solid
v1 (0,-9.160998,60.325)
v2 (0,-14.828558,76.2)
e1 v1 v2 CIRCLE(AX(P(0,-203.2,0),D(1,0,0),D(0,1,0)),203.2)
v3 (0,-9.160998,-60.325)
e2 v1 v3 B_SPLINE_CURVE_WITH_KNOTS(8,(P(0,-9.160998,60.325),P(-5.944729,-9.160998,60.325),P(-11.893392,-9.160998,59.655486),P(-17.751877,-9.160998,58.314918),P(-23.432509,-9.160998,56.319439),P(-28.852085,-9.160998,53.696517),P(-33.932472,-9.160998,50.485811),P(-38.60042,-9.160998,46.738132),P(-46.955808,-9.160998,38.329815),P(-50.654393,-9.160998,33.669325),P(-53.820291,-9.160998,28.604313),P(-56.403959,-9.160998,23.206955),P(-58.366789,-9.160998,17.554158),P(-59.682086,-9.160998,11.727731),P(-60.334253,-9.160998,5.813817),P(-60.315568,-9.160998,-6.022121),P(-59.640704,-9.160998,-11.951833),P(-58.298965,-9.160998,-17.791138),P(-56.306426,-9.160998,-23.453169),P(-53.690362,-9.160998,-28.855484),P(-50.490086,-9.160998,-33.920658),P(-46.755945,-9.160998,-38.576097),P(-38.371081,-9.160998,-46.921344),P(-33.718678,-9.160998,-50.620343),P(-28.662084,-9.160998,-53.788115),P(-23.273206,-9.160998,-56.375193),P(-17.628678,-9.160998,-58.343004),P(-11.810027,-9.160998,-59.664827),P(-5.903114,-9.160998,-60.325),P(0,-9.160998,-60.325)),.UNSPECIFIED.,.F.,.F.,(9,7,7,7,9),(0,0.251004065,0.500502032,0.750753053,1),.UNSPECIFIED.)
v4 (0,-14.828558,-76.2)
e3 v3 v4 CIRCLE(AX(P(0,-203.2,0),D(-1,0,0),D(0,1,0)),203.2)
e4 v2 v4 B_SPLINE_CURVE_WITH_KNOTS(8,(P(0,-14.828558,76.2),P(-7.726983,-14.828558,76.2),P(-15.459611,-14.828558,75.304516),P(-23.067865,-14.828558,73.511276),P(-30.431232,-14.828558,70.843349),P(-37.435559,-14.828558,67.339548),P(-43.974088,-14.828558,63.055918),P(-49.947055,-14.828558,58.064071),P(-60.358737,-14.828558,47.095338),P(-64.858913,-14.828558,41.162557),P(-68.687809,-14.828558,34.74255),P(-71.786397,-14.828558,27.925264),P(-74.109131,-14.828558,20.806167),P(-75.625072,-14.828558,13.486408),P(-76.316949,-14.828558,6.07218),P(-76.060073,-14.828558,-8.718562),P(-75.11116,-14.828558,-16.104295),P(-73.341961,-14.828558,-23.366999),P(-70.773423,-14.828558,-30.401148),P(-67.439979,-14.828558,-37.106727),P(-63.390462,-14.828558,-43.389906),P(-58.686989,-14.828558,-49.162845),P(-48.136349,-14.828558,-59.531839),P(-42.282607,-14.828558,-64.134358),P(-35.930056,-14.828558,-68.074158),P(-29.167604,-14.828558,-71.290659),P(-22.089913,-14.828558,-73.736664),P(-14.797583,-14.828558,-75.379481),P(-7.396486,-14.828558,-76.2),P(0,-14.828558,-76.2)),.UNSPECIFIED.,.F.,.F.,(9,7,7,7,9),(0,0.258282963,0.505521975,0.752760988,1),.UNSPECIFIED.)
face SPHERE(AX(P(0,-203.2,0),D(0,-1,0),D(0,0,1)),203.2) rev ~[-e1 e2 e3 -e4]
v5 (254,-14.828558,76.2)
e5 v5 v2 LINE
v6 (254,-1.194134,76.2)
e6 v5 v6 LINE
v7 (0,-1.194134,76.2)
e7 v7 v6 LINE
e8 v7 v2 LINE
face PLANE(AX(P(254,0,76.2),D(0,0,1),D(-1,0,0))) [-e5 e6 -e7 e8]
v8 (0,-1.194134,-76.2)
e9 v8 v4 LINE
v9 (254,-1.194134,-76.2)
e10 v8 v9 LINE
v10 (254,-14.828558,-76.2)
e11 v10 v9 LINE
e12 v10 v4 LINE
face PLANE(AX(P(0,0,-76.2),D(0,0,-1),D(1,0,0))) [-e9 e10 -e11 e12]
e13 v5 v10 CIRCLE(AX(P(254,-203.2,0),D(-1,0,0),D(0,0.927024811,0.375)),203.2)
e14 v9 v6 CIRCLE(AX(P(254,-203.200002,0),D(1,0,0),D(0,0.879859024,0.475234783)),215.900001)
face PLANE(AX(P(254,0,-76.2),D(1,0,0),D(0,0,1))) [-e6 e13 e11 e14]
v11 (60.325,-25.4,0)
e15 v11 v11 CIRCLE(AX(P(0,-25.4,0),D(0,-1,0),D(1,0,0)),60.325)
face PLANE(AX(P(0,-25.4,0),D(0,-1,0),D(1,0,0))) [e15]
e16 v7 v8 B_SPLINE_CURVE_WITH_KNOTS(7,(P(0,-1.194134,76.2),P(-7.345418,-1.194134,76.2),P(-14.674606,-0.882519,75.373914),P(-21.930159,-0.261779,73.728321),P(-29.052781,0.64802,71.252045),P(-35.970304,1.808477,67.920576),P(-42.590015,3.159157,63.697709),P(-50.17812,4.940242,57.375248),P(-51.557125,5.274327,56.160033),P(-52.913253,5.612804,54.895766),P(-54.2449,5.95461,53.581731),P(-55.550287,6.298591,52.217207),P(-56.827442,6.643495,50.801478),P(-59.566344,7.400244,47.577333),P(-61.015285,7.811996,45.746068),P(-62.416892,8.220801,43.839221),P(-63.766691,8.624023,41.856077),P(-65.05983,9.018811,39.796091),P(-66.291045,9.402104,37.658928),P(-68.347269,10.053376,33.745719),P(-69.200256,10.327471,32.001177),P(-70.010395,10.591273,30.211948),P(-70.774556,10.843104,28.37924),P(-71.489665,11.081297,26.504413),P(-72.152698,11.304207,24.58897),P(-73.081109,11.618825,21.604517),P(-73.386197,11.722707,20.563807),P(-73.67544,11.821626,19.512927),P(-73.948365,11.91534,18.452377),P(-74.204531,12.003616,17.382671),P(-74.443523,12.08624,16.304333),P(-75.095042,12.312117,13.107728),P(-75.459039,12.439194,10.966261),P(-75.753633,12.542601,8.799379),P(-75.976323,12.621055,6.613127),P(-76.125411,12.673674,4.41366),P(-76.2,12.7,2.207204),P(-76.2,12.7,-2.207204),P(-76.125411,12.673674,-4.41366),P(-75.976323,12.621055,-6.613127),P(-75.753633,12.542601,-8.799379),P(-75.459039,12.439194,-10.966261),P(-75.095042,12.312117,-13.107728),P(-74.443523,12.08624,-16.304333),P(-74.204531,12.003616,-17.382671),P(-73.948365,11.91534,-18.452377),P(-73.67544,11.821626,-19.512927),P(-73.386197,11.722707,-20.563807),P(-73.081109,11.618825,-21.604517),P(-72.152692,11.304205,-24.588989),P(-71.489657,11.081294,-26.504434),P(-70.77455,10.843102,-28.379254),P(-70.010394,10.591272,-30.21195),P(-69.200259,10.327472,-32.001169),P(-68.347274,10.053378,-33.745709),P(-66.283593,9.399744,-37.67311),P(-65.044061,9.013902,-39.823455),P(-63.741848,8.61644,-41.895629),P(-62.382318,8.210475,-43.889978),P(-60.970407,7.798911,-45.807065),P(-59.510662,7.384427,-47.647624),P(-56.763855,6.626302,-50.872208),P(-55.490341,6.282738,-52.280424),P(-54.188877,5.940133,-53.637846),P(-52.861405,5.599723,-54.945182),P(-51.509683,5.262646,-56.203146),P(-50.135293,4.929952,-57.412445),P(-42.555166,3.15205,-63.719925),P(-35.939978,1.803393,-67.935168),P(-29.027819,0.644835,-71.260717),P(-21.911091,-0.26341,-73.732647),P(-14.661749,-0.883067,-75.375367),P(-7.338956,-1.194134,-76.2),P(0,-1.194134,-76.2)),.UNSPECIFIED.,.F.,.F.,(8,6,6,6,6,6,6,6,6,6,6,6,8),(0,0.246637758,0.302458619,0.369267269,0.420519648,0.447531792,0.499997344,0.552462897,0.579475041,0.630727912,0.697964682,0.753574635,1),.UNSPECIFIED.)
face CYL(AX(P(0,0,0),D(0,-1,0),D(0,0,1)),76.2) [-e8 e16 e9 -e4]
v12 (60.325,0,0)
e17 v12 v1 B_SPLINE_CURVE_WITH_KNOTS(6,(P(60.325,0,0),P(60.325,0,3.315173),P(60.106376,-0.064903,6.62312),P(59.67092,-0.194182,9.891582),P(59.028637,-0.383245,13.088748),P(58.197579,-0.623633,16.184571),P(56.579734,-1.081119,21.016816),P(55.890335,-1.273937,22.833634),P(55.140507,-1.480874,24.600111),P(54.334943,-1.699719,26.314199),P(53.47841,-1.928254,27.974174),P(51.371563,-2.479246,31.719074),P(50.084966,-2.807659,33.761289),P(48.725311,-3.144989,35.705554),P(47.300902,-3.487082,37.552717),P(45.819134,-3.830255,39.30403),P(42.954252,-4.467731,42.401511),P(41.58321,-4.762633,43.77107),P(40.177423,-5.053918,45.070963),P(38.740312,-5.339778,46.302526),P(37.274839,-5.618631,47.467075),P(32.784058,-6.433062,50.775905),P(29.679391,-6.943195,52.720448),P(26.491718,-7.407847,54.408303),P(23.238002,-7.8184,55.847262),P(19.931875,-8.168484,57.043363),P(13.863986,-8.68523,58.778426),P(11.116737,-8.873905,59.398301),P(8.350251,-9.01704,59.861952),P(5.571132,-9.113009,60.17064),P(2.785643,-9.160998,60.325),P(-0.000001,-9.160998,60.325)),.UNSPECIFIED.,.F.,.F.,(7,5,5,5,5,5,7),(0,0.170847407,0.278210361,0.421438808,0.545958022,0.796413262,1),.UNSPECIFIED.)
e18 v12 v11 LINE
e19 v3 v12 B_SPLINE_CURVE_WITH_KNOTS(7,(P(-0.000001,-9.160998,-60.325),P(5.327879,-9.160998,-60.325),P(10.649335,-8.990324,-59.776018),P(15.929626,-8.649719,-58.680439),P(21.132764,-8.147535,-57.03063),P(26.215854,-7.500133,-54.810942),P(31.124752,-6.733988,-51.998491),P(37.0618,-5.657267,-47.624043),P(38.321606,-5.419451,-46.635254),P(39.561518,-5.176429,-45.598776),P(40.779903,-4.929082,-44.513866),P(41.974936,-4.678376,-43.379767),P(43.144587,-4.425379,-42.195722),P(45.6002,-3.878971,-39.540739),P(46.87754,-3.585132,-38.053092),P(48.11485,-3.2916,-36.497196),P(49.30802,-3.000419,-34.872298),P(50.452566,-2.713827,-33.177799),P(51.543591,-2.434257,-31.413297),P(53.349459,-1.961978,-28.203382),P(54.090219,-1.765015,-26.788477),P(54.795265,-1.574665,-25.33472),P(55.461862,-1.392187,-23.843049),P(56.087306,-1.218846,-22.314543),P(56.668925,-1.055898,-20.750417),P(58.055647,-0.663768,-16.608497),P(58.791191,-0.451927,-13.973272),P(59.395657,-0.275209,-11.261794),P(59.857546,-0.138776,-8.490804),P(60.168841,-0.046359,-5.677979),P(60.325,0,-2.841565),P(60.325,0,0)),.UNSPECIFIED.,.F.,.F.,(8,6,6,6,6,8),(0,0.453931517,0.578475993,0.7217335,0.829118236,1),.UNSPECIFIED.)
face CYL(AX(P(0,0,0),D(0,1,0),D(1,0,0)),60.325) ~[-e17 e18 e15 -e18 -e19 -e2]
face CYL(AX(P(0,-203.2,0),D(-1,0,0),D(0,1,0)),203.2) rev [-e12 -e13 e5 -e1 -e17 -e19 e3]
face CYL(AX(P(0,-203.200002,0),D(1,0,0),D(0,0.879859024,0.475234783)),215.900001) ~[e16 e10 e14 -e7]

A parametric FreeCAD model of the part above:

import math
import FreeCAD as App
import Part
import Sketcher
from FreeCAD import Vector
Q = App.Units.Quantity

doc = App.newDocument("Part")
body = doc.addObject("PartDesign::Body", "Body")

# Sketch on XZ plane
sketch1 = body.newObject("Sketcher::SketchObject", "Sketch")
sketch1.AttachmentSupport = (doc.getObject("XZ_Plane"), [""])
sketch1.MapMode = "FlatFace"
sketch1.addGeometry([
    Part.LineSegment(Vector(254, 76.2, 0), Vector(0, 76.2, 0)),
    Part.ArcOfCircle(Part.Circle(Vector(0, 0, 0), Vector(0, 0, 1), 76.2), math.radians(90), math.radians(270)),
    Part.LineSegment(Vector(0, -76.2, 0), Vector(254, -76.2, 0)),
    Part.LineSegment(Vector(254, -76.2, 0), Vector(254, 76.2, 0)),
], False)
sketch1.addConstraint([
    Sketcher.Constraint("Tangent", 0, 2, 1, 1),
    Sketcher.Constraint("Tangent", 1, 2, 2, 1),
    Sketcher.Constraint("Coincident", 2, 2, 3, 1),
    Sketcher.Constraint("Coincident", 3, 2, 0, 1),
    Sketcher.Constraint("Horizontal", 0),
    Sketcher.Constraint("Horizontal", 2),
    Sketcher.Constraint("Vertical", 3),
    Sketcher.Constraint("Coincident", 1, 3, -1, 1),
    Sketcher.Constraint("Radius", 1, Q("3 in")),
    Sketcher.Constraint("DistanceX", 0, 2, 0, 1, Q("10 in")),
])
pad1 = body.newObject("PartDesign::Pad", "Pad")
pad1.Profile = sketch1
pad1.Length = Q("1.5 in")
pad1.Midplane = True

# Sketch on YZ plane
sketch2 = body.newObject("Sketcher::SketchObject", "Sketch001")
sketch2.AttachmentSupport = (doc.getObject("YZ_Plane"), [""])
sketch2.MapMode = "FlatFace"
sketch2.addGeometry([
    Part.LineSegment(Vector(-406.4, 0, 0), Vector(0, 0, 0)),
    Part.ArcOfCircle(Part.Circle(Vector(-203.2, 0, 0), Vector(0, 0, 1), 203.2), math.radians(0), math.radians(180)),
], False)
sketch2.addConstraint([
    Sketcher.Constraint("Coincident", 0, 1, 1, 2),
    Sketcher.Constraint("Coincident", 1, 1, 0, 2),
    Sketcher.Constraint("Horizontal", 0),
    Sketcher.Constraint("Coincident", 1, 1, -1, 1),
    Sketcher.Constraint("PointOnObject", 1, 3, -1),
    Sketcher.Constraint("Radius", 1, Q("8 in")),
])
groove = body.newObject("PartDesign::Groove", "Groove")
groove.Profile = sketch2
groove.ReferenceAxis = (sketch2, ["H_Axis"])
groove.Angle = 180
groove.Reversed = True

# Sketch on YZ plane
sketch3 = body.newObject("Sketcher::SketchObject", "Sketch002")
sketch3.AttachmentSupport = (doc.getObject("YZ_Plane"), [""])
sketch3.MapMode = "FlatFace"
sketch3.addGeometry(Part.Circle(Vector(-203.2, 0, 0), Vector(0, 0, 1), 203.2), False)
sketch3.addConstraint([
    Sketcher.Constraint("PointOnObject", 0, 3, -1),
    Sketcher.Constraint("Diameter", 0, Q("16 in")),
    Sketcher.Constraint("DistanceX", 0, 3, -1, 1, Q("8 in")),
])
pocket1 = body.newObject("PartDesign::Pocket", "Pocket")
pocket1.Profile = sketch3
pocket1.Length = 492.64856
pocket1.Reversed = True

# Sketch on YZ plane
sketch4 = body.newObject("Sketcher::SketchObject", "Sketch003")
sketch4.AttachmentSupport = (doc.getObject("YZ_Plane"), [""])
sketch4.MapMode = "FlatFace"
sketch4.addGeometry([
    Part.ArcOfCircle(Part.Circle(Vector(-203.200002, 0, 0), Vector(0, 0, 1), 215.900001), math.radians(-31.060672), math.radians(28.374638)),
    Part.LineSegment(Vector(-18.255432, -111.392625, 0), Vector(114.283874, -111.392625, 0)),
    Part.LineSegment(Vector(114.283874, -111.392625, 0), Vector(114.283874, 102.60319, 0)),
    Part.LineSegment(Vector(114.283874, 102.60319, 0), Vector(-13.238437, 102.60319, 0)),
], False)
sketch4.addConstraint([
    Sketcher.Constraint("Coincident", 0, 1, 1, 1),
    Sketcher.Constraint("Coincident", 1, 2, 2, 1),
    Sketcher.Constraint("Coincident", 2, 2, 3, 1),
    Sketcher.Constraint("Coincident", 3, 2, 0, 2),
    Sketcher.Constraint("Horizontal", 1),
    Sketcher.Constraint("Vertical", 2),
    Sketcher.Constraint("Horizontal", 3),
    Sketcher.Constraint("PointOnObject", 0, 3, -1),
    Sketcher.Constraint("Radius", 0, Q("8.5000001 in")),
    Sketcher.Constraint("DistanceX", 0, 3, -1, 1, Q("8.0000001 in")),
    Sketcher.Constraint("DistanceX", 3, 2, 3, 1, 127.522311),
    Sketcher.Constraint("DistanceX", 1, 1, 1, 2, 132.539306),
    Sketcher.Constraint("DistanceY", 2, 1, 2, 2, 213.995815),
])
pocket2 = body.newObject("PartDesign::Pocket", "Pocket001")
pocket2.Profile = sketch4
pocket2.Length = 571.71554
pocket2.Midplane = True

# Sketch on XZ plane
sketch5 = body.newObject("Sketcher::SketchObject", "Sketch004")
sketch5.AttachmentSupport = (doc.getObject("XZ_Plane"), [""])
sketch5.MapMode = "FlatFace"
sketch5.addGeometry(Part.Circle(Vector(0, 0, 0), Vector(0, 0, 1), 60.325), False)
sketch5.addConstraint([
    Sketcher.Constraint("Coincident", 0, 3, -1, 1),
    Sketcher.Constraint("Diameter", 0, Q("4.75 in")),
])
pad2 = body.newObject("PartDesign::Pad", "Pad001")
pad2.Profile = sketch5
pad2.Length = Q("1 in")

doc.recompute()
